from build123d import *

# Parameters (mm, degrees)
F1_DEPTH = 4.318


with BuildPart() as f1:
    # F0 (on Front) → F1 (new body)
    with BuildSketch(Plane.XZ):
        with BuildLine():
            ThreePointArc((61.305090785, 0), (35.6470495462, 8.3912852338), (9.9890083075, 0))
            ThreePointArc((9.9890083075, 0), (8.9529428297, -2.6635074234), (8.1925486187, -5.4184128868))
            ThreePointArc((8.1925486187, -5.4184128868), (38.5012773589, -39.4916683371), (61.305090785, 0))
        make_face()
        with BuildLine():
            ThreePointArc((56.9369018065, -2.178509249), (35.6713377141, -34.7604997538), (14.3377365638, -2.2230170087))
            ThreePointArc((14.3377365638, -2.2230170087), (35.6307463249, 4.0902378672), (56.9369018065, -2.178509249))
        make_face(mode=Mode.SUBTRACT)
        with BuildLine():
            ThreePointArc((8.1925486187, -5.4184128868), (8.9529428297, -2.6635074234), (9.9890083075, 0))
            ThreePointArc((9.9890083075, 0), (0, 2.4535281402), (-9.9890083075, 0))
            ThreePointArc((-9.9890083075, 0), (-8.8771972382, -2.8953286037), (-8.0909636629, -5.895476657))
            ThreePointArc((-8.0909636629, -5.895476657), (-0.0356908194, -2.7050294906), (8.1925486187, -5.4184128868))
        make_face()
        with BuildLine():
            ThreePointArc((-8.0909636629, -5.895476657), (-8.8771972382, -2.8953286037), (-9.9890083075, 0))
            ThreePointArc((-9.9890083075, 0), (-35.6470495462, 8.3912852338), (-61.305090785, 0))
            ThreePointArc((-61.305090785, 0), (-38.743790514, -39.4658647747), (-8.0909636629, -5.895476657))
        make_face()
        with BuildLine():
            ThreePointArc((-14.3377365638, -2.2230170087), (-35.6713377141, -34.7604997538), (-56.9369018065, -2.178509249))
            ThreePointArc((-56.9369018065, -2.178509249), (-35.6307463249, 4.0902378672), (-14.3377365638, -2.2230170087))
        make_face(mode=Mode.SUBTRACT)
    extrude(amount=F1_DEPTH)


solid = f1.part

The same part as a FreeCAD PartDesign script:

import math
import FreeCAD as App
import Part
import Sketcher

V = App.Vector
Q = App.Units.Quantity

doc = App.newDocument("Part")
body = doc.addObject("PartDesign::Body", "Body")

sketch1 = doc.addObject("Sketcher::SketchObject", "Sketch")
body.addObject(sketch1)
sketch1.AttachmentSupport = (doc.XZ_Plane, [""])
sketch1.MapMode = "FlatFace"
sketch1.addGeometry([
    Part.ArcOfCircle(Part.Circle(V(36, -35, 0), V(0, 0, 1), 43), math.radians(54), math.radians(126)),
    Part.ArcOfCircle(Part.Circle(V(0, -19, 0), V(0, 0, 1), 22), math.radians(62), math.radians(118)),
    Part.ArcOfCircle(Part.Circle(V(-36, -35, 0), V(0, 0, 1), 43), math.radians(54), math.radians(126)),
    Part.ArcOfCircle(Part.Circle(V(-36, -12, 0), V(0, 0, 1), 28), math.radians(156), math.radians(372)),
    Part.ArcOfCircle(Part.Circle(V(0, -15, 0), V(0, 0, 1), 13), math.radians(52), math.radians(132)),
    Part.ArcOfCircle(Part.Circle(V(36, -12, 0), V(0, 0, 1), 28), math.radians(167), math.radians(384)),
    Part.ArcOfCircle(Part.Circle(V(-36, -35, 0), V(0, 0, 1), 39), math.radians(57), math.radians(123)),
    Part.ArcOfCircle(Part.Circle(V(-36, -12, 0), V(0, 0, 1), 23), math.radians(156), math.radians(384)),
    Part.ArcOfCircle(Part.Circle(V(36, -35, 0), V(0, 0, 1), 39), math.radians(57), math.radians(123)),
    Part.ArcOfCircle(Part.Circle(V(36, -12, 0), V(0, 0, 1), 23), math.radians(156), math.radians(384)),
], False)
sketch1.addConstraint([
    Sketcher.Constraint("Coincident", 0, 2, 1, 1),
    Sketcher.Constraint("Coincident", 1, 2, 2, 1),
    Sketcher.Constraint("Coincident", 2, 2, 3, 1),
    Sketcher.Constraint("Coincident", 3, 2, 4, 2),
    Sketcher.Constraint("Coincident", 4, 1, 5, 1),
    Sketcher.Constraint("Coincident", 5, 2, 0, 1),
    Sketcher.Constraint("Coincident", 6, 1, 7, 2),
    Sketcher.Constraint("Coincident", 7, 1, 6, 2),
    Sketcher.Constraint("Coincident", 8, 1, 9, 2),
    Sketcher.Constraint("Coincident", 9, 1, 8, 2),
    Sketcher.Constraint("Coincident", 7, 3, 3, 3),
    Sketcher.Constraint("Coincident", 9, 3, 5, 3),
    Sketcher.Constraint("Equal", 0, 2),
    Sketcher.Constraint("Equal", 3, 5),
    Sketcher.Constraint("Equal", 6, 8),
    Sketcher.Constraint("Equal", 7, 9),
    Sketcher.Constraint("Symmetric", 0, 2, 1, 2, -1, 1),
    Sketcher.Constraint("Symmetric", 2, 2, 5, 2, -1, 1),
    Sketcher.Constraint("Symmetric", 0, 3, 2, 3, -2),
    Sketcher.Constraint("Symmetric", 6, 3, 8, 3, -2),
    Sketcher.Constraint("Horizontal", 3, 3, 5, 3),
    Sketcher.Constraint("Vertical", 2, 3, 3, 3),
    Sketcher.Constraint("Radius", 0, 43.422952),
    Sketcher.Constraint("Radius", 3, 28.123018),
    Sketcher.Constraint("Radius", 6, 39.202758),
    Sketcher.Constraint("Radius", 7, 23.246648),
    Sketcher.Constraint("Radius", 1, 21.560806),
    Sketcher.Constraint("Radius", 4, 12.709406),
    Sketcher.Constraint("DistanceX", -1, 1, 4, 3, 0.336501),
    Sketcher.Constraint("DistanceY", 6, 3, -1, 1, 35.112499),
    Sketcher.Constraint("DistanceX", 7, 1, -1, 1, 56.936902),
    Sketcher.Constraint("DistanceX", 2, 3, 0, 3, 71.294099),
    Sketcher.Constraint("DistanceY", 1, 3, 3, 2, 13.211801),
    Sketcher.Constraint("DistanceX", 3, 2, 9, 1, 22.4287),
])
pad1 = doc.addObject("PartDesign::Pad", "Pad")
body.addObject(pad1)
pad1.Profile = sketch1
pad1.Length = Q("0.17 in")

doc.recompute()
